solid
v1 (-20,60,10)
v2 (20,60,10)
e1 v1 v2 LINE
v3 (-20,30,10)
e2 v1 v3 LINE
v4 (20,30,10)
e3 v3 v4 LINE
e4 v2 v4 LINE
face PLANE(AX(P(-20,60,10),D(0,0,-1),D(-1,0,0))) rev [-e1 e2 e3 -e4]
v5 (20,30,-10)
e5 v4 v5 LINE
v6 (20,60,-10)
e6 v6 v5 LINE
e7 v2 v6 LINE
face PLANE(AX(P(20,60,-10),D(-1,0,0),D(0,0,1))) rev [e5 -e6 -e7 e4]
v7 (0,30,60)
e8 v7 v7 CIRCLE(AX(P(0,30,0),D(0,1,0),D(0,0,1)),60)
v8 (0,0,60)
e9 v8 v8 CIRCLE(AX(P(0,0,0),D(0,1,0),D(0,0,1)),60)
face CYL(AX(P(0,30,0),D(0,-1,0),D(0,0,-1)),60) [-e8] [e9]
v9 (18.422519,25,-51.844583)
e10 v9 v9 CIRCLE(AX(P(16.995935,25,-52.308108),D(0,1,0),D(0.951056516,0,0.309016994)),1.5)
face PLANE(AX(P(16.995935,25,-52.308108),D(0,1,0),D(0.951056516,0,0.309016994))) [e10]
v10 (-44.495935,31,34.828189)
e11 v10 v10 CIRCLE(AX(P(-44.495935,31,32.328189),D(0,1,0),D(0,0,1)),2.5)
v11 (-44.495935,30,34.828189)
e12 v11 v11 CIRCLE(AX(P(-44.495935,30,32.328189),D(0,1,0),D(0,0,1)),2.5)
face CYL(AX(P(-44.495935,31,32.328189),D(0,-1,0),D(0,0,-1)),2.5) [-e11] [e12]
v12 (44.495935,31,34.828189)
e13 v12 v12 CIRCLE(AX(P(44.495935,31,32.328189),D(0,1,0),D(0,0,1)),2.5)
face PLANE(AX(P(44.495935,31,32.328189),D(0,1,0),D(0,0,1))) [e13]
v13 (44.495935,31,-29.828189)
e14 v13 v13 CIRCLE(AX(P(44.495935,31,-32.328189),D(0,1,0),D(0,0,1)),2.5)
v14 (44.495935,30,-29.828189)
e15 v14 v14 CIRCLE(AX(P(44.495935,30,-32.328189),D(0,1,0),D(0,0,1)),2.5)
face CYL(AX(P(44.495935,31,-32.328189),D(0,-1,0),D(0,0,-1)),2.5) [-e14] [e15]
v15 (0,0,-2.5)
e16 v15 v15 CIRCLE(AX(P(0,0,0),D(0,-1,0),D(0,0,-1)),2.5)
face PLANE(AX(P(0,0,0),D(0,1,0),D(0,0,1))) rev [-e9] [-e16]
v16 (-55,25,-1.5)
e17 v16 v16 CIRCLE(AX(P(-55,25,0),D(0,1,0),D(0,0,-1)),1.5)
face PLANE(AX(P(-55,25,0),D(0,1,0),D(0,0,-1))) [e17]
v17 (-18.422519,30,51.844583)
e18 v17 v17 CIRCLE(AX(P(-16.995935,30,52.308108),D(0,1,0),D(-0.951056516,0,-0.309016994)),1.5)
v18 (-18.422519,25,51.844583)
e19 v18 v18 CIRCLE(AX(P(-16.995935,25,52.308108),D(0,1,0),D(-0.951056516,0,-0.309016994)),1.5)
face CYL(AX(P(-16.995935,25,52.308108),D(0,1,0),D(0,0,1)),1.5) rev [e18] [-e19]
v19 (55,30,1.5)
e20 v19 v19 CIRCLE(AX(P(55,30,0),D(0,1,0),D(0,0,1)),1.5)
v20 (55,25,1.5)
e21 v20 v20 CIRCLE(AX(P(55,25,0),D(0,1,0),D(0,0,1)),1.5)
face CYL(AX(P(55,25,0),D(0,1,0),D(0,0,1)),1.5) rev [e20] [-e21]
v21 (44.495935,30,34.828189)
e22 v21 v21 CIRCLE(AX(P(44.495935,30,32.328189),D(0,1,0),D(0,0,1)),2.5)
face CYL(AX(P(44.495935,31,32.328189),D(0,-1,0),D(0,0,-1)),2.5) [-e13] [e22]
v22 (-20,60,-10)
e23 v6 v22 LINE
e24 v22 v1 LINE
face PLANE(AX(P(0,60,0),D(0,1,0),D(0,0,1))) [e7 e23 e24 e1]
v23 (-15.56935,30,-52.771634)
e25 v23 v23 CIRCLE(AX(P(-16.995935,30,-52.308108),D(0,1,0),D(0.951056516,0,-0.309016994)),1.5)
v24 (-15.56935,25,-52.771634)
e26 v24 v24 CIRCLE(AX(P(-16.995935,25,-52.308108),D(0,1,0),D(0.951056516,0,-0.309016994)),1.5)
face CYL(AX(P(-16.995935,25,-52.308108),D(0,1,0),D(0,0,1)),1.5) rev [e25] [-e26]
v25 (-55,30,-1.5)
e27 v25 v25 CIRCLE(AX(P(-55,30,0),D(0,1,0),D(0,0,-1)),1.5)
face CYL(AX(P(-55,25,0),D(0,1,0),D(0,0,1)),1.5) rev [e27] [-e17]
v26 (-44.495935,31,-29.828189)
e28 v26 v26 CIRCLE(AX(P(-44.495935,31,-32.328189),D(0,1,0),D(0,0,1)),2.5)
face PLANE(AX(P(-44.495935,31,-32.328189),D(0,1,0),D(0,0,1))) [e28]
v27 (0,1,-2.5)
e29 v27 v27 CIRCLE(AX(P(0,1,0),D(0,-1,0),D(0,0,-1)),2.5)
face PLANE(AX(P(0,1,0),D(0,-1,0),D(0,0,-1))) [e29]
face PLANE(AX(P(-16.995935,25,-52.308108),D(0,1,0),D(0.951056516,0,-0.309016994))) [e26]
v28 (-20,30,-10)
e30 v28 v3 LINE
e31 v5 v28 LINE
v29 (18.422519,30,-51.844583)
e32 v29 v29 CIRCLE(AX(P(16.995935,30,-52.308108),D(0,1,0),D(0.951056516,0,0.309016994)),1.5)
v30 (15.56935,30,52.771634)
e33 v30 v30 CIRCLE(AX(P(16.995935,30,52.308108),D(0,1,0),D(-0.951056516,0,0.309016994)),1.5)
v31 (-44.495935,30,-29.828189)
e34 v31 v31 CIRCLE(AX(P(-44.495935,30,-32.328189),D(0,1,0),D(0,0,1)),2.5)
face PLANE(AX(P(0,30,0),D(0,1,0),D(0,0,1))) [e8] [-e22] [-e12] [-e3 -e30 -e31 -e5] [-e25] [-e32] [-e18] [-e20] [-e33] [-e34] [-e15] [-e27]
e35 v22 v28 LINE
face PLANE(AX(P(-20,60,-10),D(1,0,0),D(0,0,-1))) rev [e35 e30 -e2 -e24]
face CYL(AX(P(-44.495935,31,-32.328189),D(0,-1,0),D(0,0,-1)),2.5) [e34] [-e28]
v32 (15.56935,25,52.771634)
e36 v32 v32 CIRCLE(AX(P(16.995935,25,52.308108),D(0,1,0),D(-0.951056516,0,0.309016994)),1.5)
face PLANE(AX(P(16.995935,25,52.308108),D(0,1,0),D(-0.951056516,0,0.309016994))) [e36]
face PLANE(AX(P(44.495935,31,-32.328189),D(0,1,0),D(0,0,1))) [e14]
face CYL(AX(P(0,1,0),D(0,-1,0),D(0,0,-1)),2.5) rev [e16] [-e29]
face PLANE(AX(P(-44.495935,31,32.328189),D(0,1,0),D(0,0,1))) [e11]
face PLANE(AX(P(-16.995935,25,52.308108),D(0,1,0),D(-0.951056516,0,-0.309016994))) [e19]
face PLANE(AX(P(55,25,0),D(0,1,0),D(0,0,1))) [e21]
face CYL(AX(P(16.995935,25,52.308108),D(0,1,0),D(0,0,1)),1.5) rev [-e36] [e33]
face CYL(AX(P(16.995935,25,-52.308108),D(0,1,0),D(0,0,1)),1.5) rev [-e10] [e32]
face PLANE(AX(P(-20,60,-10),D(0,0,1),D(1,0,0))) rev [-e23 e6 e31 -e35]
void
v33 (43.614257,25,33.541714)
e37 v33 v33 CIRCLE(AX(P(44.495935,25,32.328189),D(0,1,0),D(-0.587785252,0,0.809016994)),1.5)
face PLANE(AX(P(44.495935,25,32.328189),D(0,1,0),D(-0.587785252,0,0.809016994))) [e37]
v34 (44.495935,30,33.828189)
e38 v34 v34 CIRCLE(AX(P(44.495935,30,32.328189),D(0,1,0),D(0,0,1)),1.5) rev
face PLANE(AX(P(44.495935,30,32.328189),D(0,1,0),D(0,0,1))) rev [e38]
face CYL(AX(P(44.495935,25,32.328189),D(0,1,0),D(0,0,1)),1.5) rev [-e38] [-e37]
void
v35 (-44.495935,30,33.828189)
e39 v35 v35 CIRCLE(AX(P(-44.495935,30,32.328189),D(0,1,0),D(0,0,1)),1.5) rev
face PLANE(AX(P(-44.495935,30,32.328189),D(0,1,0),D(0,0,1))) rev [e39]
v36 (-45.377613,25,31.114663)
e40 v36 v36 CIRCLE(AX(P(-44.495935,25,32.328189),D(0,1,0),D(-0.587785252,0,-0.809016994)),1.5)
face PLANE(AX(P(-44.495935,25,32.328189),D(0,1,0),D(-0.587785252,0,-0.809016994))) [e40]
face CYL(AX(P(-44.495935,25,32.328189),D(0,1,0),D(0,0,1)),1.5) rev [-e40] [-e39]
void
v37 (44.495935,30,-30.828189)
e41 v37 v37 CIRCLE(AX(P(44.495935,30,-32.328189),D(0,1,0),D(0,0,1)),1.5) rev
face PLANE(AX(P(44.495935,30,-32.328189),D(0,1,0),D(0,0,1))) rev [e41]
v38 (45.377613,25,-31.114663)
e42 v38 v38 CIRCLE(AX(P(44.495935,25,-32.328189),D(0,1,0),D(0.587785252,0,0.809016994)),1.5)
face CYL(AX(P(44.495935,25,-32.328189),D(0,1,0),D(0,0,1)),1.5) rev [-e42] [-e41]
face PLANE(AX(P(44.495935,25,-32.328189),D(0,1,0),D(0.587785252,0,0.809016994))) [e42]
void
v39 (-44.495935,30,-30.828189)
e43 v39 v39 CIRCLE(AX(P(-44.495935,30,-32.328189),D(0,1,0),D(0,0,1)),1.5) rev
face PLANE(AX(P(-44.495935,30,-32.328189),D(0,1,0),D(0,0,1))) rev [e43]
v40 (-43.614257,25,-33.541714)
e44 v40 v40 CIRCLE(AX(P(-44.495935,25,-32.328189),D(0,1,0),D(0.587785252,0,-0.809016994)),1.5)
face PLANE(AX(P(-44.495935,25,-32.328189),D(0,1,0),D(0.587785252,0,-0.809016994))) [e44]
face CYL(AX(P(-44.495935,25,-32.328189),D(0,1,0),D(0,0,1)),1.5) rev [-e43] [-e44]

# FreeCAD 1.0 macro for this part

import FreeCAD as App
import Part
import Sketcher
from FreeCAD import Vector
Q = App.Units.Quantity


def add_polygon(sketch, points):
    """Adds a closed chain of lines whose ends are joined by coincident constraints."""
    first, n = sketch.GeometryCount, len(points)
    for a, b in zip(points, points[1:] + points[:1]):
        sketch.addGeometry(Part.LineSegment(App.Vector(*a, 0), App.Vector(*b, 0)), False)
    for i in range(n):
        sketch.addConstraint(Sketcher.Constraint("Coincident", first + i, 2, first + (i + 1) % n, 1))

doc = App.newDocument("Part")
body = doc.addObject("PartDesign::Body", "Body")

# Sketch on XZ plane
sketch1 = doc.addObject("Sketcher::SketchObject", "Sketch")
body.addObject(sketch1)
sketch1.AttachmentSupport = (doc.XZ_Plane, [""])
sketch1.MapMode = "FlatFace"
sketch1.addGeometry(Part.Circle(Vector(0, 0, 0), Vector(0, 0, 1), 60), False)
sketch1.addConstraint(Sketcher.Constraint("Coincident", 0, 3, -1, 1))
sketch1.addConstraint(Sketcher.Constraint("Diameter", 0, Q("120 mm")))
pad1 = doc.addObject("PartDesign::Pad", "Pad")
body.addObject(pad1)
pad1.Profile = sketch1
pad1.Length = 30
pad1.Reversed = True

# Sketch on XZ plane
sketch2 = doc.addObject("Sketcher::SketchObject", "Sketch001")
body.addObject(sketch2)
sketch2.AttachmentSupport = (doc.XZ_Plane, [""])
sketch2.MapMode = "FlatFace"
sketch2.AttachmentOffset = App.Placement(Vector(0, 0, -30), App.Rotation())
sketch2.addGeometry(Part.Circle(Vector(55, 0, 0), Vector(0, 0, 1), 1.5), False)
sketch2.addConstraint(Sketcher.Constraint("PointOnObject", 0, 3, -1))
sketch2.addConstraint(Sketcher.Constraint("Diameter", 0, Q("3 mm")))
sketch2.addConstraint(Sketcher.Constraint("DistanceX", -1, 1, 0, 3, Q("55 mm")))
pocket1 = doc.addObject("PartDesign::Pocket", "Pocket")
body.addObject(pocket1)
pocket1.Profile = sketch2
pocket1.Length = 5
pocket1.Reversed = True
doc.recompute()

polarpattern = doc.addObject("PartDesign::PolarPattern", "PolarPattern")
body.addObject(polarpattern)
polarpattern.Originals = [pocket1]
polarpattern.Axis = (doc.Y_Axis, [""])
polarpattern.Angle = 360
polarpattern.Occurrences = 10
body.Tip = polarpattern

# Sketch on XZ plane
sketch3 = doc.addObject("Sketcher::SketchObject", "Sketch002")
body.addObject(sketch3)
sketch3.AttachmentSupport = (doc.XZ_Plane, [""])
sketch3.MapMode = "FlatFace"
sketch3.AttachmentOffset = App.Placement(Vector(0, 0, -30), App.Rotation())
add_polygon(sketch3, [(-20, -10), (-20, 10), (20, 10), (20, -10)])  # lines 0-3
sketch3.addConstraint(Sketcher.Constraint("Vertical", 0))
sketch3.addConstraint(Sketcher.Constraint("Horizontal", 1))
sketch3.addConstraint(Sketcher.Constraint("Vertical", 2))
sketch3.addConstraint(Sketcher.Constraint("Horizontal", 3))
sketch3.addConstraint(Sketcher.Constraint("Symmetric", 0, 2, 2, 2, -1, 1))
sketch3.addConstraint(Sketcher.Constraint("DistanceX", 1, 1, 1, 2, Q("40 mm")))
sketch3.addConstraint(Sketcher.Constraint("DistanceY", 0, 1, 0, 2, Q("20 mm")))
pad2 = doc.addObject("PartDesign::Pad", "Pad001")
body.addObject(pad2)
pad2.Profile = sketch3
pad2.Length = 30
pad2.Reversed = True

# Sketch on XZ plane
sketch4 = doc.addObject("Sketcher::SketchObject", "Sketch003")
body.addObject(sketch4)
sketch4.AttachmentSupport = (doc.XZ_Plane, [""])
sketch4.MapMode = "FlatFace"
sketch4.AttachmentOffset = App.Placement(Vector(0, 0, -30), App.Rotation())
sketch4.addGeometry(Part.Circle(Vector(-44.5, -32.3, 0), Vector(0, 0, 1), 2.5), False)
sketch4.addGeometry(Part.Circle(Vector(44.5, 32.3, 0), Vector(0, 0, 1), 2.5), False)
sketch4.addGeometry(Part.Circle(Vector(44.5, -32.3, 0), Vector(0, 0, 1), 2.5), False)
sketch4.addGeometry(Part.Circle(Vector(-44.5, 32.3, 0), Vector(0, 0, 1), 2.5), False)
sketch4.addConstraint(Sketcher.Constraint("Equal", 0, 1))
sketch4.addConstraint(Sketcher.Constraint("Equal", 1, 2))
sketch4.addConstraint(Sketcher.Constraint("Equal", 2, 3))
sketch4.addConstraint(Sketcher.Constraint("Symmetric", 0, 3, 1, 3, -1, 1))
sketch4.addConstraint(Sketcher.Constraint("Symmetric", 2, 3, 3, 3, -1, 1))
sketch4.addConstraint(Sketcher.Constraint("Symmetric", 0, 3, 2, 3, -2))
sketch4.addConstraint(Sketcher.Constraint("Diameter", 0, Q("5 mm")))
sketch4.addConstraint(Sketcher.Constraint("DistanceY", 0, 3, -1, 1, Q("32.328189 mm")))
sketch4.addConstraint(Sketcher.Constraint("DistanceX", 0, 3, 1, 3, Q("88.991869 mm")))
pad3 = doc.addObject("PartDesign::Pad", "Pad002")
body.addObject(pad3)
pad3.Profile = sketch4
pad3.Length = 1
pad3.Reversed = True

# Sketch on XZ plane
sketch5 = doc.addObject("Sketcher::SketchObject", "Sketch004")
body.addObject(sketch5)
sketch5.AttachmentSupport = (doc.XZ_Plane, [""])
sketch5.MapMode = "FlatFace"
sketch5.addGeometry(Part.Circle(Vector(0, 0, 0), Vector(0, 0, 1), 2.5), False)
sketch5.addConstraint(Sketcher.Constraint("Coincident", 0, 3, -1, 1))
sketch5.addConstraint(Sketcher.Constraint("Diameter", 0, Q("5 mm")))
pocket2 = doc.addObject("PartDesign::Pocket", "Pocket001")
body.addObject(pocket2)
pocket2.Profile = sketch5
pocket2.Length = 1

doc.recompute()
